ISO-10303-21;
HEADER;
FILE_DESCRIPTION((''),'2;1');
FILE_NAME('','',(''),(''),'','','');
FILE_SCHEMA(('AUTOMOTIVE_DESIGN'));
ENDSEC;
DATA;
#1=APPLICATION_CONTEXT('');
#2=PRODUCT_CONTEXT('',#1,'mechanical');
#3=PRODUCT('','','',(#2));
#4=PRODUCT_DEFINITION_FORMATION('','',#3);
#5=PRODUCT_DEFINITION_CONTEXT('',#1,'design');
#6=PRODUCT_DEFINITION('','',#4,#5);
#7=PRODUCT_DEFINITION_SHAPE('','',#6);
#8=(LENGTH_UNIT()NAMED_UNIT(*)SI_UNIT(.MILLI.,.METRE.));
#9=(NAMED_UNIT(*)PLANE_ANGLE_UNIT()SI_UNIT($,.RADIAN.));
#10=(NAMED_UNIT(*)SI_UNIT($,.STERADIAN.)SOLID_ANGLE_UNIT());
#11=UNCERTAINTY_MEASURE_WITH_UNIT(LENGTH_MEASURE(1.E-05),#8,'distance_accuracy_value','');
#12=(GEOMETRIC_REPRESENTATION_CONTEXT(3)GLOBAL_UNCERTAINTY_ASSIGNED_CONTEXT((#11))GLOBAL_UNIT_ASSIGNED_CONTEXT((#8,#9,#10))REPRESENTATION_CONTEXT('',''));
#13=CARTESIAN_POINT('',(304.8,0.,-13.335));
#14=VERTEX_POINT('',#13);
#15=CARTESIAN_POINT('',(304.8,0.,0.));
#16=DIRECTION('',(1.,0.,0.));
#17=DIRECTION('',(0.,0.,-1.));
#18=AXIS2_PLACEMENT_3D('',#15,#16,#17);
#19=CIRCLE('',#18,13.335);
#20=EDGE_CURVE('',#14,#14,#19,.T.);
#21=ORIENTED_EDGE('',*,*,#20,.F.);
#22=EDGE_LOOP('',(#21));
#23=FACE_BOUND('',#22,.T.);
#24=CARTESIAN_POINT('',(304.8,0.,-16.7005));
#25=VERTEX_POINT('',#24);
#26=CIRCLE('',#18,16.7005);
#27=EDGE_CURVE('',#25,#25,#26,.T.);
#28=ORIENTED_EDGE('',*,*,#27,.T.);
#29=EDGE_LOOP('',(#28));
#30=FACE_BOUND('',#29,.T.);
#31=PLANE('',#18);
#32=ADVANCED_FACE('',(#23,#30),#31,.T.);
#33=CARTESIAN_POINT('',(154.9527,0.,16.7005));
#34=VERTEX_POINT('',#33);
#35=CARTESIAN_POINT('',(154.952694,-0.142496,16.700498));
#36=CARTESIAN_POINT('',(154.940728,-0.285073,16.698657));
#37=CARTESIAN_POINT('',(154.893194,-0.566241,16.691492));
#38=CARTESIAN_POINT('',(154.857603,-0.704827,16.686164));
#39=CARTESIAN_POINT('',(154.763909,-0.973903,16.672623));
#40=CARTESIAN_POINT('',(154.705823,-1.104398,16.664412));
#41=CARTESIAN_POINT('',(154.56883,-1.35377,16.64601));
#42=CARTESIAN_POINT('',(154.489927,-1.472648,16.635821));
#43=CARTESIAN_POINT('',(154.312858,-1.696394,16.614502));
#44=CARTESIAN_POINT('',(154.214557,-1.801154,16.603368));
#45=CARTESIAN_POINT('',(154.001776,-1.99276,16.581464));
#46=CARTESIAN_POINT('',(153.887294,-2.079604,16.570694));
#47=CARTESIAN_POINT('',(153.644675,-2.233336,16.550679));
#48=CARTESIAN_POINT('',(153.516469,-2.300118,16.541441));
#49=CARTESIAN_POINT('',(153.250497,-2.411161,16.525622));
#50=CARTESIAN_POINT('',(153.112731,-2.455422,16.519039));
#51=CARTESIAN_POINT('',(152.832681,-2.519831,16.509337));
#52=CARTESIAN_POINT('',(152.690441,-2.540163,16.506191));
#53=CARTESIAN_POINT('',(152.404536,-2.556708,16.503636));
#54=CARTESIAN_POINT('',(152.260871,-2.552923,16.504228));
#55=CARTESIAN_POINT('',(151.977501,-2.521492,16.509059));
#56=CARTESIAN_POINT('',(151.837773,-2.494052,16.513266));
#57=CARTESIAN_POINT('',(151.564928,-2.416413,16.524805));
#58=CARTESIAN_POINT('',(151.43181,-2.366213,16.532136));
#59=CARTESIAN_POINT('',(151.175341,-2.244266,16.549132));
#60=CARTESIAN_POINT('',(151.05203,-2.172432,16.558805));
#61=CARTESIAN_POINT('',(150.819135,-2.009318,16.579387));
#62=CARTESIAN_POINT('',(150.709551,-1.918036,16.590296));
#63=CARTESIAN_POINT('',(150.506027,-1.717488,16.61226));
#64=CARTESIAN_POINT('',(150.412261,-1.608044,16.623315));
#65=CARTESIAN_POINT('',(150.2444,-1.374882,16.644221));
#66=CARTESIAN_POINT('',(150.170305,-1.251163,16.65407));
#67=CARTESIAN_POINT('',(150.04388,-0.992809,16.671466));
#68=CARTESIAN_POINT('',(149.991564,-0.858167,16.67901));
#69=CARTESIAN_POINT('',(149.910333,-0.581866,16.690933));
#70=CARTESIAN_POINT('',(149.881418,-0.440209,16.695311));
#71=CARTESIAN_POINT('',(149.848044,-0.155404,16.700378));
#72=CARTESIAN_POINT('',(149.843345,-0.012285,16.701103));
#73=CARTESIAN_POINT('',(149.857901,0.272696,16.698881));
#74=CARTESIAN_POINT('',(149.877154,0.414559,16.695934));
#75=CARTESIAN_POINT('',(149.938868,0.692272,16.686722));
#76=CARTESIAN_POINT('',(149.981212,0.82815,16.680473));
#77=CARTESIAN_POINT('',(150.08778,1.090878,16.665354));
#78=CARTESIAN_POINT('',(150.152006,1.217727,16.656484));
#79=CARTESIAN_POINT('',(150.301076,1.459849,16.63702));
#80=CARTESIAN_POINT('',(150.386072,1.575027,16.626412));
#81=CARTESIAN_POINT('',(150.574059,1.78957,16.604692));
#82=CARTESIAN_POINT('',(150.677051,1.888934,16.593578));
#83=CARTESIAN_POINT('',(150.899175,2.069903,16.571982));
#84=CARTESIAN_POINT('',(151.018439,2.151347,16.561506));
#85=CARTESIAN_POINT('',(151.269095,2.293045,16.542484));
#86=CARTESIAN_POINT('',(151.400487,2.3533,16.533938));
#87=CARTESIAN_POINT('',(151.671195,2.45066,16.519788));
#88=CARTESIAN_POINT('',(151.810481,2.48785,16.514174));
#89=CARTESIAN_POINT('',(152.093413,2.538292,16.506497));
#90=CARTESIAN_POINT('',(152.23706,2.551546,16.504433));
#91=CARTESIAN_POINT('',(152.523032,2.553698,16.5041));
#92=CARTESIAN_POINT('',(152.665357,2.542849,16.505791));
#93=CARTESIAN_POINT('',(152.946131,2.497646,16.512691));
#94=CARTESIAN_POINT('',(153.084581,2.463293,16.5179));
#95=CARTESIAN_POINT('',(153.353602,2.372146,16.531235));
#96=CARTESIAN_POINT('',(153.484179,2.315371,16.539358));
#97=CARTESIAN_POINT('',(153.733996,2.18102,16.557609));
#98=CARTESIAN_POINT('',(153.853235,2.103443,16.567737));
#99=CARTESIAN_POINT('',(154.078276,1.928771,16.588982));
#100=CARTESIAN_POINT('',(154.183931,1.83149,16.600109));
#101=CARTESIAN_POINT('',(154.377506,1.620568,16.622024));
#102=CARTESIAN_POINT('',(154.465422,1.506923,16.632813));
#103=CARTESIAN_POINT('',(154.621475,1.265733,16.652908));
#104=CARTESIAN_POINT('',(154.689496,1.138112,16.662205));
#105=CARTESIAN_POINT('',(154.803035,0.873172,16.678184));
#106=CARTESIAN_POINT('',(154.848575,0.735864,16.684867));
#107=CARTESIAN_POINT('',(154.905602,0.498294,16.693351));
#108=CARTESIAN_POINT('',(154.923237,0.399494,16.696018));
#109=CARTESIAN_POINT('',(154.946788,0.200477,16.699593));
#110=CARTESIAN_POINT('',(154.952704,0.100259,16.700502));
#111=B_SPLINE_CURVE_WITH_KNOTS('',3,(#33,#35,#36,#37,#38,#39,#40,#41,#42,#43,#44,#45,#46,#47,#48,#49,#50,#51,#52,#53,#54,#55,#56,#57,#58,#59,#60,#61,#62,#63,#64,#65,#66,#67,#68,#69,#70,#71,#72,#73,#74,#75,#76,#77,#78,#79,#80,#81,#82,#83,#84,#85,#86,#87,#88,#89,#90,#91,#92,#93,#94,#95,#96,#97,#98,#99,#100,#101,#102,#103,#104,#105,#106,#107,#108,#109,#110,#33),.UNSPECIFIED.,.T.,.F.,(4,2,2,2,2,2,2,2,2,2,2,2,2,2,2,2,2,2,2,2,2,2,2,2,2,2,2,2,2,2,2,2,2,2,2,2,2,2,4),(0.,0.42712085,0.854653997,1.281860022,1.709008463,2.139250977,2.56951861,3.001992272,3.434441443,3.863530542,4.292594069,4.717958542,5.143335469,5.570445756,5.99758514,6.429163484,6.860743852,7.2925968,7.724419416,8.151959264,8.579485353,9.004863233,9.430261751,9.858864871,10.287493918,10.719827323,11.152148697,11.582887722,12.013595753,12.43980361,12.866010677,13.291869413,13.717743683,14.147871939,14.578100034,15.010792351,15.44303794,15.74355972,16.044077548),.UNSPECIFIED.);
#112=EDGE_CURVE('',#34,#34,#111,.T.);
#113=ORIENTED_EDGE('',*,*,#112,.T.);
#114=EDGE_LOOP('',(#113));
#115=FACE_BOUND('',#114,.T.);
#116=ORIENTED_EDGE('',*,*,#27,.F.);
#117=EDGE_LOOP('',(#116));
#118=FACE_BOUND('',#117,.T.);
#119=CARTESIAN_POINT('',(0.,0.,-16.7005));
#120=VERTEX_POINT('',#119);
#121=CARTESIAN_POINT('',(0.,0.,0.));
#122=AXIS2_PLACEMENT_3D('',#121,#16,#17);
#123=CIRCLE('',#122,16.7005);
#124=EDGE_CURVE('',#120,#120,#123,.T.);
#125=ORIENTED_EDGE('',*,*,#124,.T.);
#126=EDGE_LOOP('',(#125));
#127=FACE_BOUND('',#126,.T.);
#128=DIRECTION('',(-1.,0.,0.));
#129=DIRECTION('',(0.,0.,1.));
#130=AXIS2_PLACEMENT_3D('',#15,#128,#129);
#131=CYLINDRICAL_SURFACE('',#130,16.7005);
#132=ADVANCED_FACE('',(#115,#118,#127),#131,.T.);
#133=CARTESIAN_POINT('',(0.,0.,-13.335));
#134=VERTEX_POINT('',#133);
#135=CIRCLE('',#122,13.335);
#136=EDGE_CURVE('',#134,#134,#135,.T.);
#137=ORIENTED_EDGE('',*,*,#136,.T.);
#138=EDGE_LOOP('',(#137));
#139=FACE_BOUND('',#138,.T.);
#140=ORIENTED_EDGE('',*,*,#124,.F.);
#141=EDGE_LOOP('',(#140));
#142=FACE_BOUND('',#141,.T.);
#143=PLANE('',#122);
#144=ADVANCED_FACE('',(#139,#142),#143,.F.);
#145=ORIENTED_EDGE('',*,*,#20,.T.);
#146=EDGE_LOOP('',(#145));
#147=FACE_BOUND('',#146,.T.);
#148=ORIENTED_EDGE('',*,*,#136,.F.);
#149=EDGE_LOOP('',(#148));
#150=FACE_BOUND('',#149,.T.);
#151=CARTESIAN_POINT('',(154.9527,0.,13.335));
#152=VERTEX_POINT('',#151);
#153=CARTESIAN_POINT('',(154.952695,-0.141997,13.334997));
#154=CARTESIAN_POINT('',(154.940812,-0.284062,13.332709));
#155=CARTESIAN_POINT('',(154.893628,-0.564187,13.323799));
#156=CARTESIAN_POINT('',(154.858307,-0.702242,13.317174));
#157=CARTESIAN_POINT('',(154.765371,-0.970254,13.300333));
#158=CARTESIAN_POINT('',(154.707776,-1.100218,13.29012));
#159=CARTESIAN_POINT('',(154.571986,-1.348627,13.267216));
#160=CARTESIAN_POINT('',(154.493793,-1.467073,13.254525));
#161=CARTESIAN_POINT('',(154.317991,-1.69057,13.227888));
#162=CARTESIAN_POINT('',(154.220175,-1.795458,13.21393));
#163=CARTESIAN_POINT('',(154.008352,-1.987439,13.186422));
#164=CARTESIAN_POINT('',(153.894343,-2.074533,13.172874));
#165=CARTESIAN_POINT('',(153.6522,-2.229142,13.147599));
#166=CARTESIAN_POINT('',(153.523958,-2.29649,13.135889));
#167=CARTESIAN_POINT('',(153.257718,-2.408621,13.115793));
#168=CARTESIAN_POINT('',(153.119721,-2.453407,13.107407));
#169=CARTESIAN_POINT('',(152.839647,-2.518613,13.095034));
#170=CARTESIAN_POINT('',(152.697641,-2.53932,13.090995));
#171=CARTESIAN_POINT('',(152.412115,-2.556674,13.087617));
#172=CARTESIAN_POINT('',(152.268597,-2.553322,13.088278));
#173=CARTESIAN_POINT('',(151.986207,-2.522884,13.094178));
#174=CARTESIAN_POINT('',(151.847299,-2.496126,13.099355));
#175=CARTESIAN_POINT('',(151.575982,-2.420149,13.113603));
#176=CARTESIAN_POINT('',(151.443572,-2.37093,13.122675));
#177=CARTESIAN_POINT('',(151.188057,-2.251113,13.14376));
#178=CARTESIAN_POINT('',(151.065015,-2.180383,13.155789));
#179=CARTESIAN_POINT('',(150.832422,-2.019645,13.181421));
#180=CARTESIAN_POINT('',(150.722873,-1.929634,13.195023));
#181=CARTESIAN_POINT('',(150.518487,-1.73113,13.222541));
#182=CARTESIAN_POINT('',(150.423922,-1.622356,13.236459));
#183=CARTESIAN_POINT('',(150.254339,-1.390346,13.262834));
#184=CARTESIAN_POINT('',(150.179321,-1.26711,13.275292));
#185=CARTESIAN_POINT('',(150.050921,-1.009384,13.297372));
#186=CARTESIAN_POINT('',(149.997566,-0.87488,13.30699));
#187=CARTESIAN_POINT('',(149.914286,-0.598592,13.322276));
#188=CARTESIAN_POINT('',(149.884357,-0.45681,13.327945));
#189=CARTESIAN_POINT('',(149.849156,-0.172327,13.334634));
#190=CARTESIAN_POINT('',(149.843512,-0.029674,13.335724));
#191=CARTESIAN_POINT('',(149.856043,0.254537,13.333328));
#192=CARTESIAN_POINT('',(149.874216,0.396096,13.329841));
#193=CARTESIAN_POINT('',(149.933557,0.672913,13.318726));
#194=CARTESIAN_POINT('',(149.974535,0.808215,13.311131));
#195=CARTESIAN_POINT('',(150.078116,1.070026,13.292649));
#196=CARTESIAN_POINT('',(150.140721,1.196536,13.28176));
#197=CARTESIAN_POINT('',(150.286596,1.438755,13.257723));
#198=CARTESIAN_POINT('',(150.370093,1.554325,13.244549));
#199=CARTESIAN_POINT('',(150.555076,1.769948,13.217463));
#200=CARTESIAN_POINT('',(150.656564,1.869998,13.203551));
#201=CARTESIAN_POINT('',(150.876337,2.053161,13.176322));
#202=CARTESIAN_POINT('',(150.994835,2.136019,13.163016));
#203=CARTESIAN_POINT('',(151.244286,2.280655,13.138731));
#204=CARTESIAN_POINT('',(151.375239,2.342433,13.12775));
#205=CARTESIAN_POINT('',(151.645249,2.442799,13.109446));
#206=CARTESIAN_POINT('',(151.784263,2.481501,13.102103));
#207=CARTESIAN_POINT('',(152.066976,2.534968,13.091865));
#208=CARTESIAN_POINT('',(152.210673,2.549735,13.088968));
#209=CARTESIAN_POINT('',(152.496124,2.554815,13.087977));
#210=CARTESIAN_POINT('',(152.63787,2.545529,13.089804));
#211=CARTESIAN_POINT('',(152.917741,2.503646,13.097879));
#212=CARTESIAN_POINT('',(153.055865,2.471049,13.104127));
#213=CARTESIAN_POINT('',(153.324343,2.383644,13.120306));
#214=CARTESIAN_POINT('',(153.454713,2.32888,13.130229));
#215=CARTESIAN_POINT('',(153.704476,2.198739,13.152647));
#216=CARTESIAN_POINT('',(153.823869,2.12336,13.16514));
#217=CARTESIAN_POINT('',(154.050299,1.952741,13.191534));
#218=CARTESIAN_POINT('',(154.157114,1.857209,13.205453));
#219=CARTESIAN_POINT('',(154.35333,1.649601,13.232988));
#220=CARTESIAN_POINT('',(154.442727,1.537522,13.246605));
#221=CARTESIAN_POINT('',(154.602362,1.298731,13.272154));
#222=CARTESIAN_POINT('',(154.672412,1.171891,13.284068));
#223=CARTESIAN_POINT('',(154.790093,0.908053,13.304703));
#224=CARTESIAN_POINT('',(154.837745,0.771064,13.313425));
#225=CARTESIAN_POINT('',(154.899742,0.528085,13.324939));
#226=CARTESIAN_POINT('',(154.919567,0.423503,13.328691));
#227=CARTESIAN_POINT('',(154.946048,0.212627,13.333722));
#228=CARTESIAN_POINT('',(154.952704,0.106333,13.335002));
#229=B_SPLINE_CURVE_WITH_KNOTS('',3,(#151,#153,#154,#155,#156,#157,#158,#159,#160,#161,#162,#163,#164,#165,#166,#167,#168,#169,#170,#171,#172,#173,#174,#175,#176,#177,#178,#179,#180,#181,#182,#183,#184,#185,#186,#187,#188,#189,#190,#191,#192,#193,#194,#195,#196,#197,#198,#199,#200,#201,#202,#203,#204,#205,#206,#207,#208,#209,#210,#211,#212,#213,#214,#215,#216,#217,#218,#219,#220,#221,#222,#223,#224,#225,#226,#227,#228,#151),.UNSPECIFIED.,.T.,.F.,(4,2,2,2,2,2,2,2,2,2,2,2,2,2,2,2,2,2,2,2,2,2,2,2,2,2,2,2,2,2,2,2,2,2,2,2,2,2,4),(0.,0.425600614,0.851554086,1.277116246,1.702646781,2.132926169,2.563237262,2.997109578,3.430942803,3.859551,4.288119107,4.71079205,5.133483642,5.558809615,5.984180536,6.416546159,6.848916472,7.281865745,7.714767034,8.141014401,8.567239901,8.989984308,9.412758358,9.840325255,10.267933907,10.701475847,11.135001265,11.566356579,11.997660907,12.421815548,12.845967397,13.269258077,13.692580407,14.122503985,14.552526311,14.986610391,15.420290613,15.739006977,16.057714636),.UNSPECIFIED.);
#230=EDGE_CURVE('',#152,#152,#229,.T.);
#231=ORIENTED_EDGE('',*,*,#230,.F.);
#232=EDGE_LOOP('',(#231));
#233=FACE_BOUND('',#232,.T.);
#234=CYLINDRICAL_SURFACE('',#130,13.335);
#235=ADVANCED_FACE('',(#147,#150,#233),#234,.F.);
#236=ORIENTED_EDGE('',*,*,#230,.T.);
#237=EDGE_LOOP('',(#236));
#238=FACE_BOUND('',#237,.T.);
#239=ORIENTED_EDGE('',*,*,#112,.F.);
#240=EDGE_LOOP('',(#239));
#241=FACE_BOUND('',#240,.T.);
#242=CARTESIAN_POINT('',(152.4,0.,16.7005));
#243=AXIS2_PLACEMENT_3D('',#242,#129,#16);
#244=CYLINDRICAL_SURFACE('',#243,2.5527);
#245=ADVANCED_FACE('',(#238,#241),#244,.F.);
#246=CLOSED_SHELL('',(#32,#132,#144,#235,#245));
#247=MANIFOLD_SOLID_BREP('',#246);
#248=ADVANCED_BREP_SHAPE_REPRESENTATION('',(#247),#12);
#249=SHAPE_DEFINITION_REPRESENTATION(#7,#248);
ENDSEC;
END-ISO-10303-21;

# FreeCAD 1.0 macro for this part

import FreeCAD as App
import Part
import Sketcher
from FreeCAD import Vector
Q = App.Units.Quantity

doc = App.newDocument("Part")
params = doc.addObject("Spreadsheet::Sheet", "Params")
for row, (alias, value) in enumerate([
    ("sketch1_diameter", "1.05 in"),
    ("sketch1_diameter2", "1.315 in"),
    ("pad1_length", "12 in"),
    ("sketch2_diameter", "0.201 in"),
], start=1):
    params.set(f"A{row}", alias)
    params.set(f"B{row}", "=" + value)
    params.setAlias(f"B{row}", alias)

body = doc.addObject("PartDesign::Body", "Body")

# Sketch on YZ plane
sketch1 = doc.addObject("Sketcher::SketchObject", "Sketch")
body.addObject(sketch1)
sketch1.AttachmentSupport = (doc.YZ_Plane, [""])
sketch1.MapMode = "FlatFace"
sketch1.addGeometry(Part.Circle(Vector(0, 0, 0), Vector(0, 0, 1), 16.7005), False)
sketch1.addGeometry(Part.Circle(Vector(0, 0, 0), Vector(0, 0, 1), 13.335), False)
sketch1.addConstraint(Sketcher.Constraint("Coincident", 0, 3, -1, 1))
sketch1.addConstraint(Sketcher.Constraint("Coincident", 1, 3, -1, 1))
sketch1.addConstraint(Sketcher.Constraint("Diameter", 1, Q("1.05 in")))
sketch1.addConstraint(Sketcher.Constraint("Diameter", 0, Q("1.315 in")))
sketch1.setExpression("Constraints[2]", "Params.sketch1_diameter")
sketch1.setExpression("Constraints[3]", "Params.sketch1_diameter2")
pad1 = doc.addObject("PartDesign::Pad", "Pad")
body.addObject(pad1)
pad1.Profile = sketch1
pad1.setExpression("Length", "Params.pad1_length")

# Sketch on XY plane
sketch2 = doc.addObject("Sketcher::SketchObject", "Sketch001")
body.addObject(sketch2)
sketch2.AttachmentSupport = (doc.XY_Plane, [""])
sketch2.MapMode = "FlatFace"
sketch2.AttachmentOffset = App.Placement(Vector(0, 0, 0.6575 * 25.4), App.Rotation())
sketch2.addGeometry(Part.Circle(Vector(152.4, 0, 0), Vector(0, 0, 1), 2.5527), False)
sketch2.addConstraint(Sketcher.Constraint("PointOnObject", 0, 3, -1))
sketch2.addConstraint(Sketcher.Constraint("Diameter", 0, Q("0.201 in")))
sketch2.addConstraint(Sketcher.Constraint("DistanceX", -1, 1, 0, 3, Q("6 in")))
sketch2.setExpression("Constraints[1]", "Params.sketch2_diameter")
pocket1 = doc.addObject("PartDesign::Pocket", "Pocket")
body.addObject(pocket1)
pocket1.Profile = sketch2
pocket1.Type = "UpToFirst"

doc.recompute()
